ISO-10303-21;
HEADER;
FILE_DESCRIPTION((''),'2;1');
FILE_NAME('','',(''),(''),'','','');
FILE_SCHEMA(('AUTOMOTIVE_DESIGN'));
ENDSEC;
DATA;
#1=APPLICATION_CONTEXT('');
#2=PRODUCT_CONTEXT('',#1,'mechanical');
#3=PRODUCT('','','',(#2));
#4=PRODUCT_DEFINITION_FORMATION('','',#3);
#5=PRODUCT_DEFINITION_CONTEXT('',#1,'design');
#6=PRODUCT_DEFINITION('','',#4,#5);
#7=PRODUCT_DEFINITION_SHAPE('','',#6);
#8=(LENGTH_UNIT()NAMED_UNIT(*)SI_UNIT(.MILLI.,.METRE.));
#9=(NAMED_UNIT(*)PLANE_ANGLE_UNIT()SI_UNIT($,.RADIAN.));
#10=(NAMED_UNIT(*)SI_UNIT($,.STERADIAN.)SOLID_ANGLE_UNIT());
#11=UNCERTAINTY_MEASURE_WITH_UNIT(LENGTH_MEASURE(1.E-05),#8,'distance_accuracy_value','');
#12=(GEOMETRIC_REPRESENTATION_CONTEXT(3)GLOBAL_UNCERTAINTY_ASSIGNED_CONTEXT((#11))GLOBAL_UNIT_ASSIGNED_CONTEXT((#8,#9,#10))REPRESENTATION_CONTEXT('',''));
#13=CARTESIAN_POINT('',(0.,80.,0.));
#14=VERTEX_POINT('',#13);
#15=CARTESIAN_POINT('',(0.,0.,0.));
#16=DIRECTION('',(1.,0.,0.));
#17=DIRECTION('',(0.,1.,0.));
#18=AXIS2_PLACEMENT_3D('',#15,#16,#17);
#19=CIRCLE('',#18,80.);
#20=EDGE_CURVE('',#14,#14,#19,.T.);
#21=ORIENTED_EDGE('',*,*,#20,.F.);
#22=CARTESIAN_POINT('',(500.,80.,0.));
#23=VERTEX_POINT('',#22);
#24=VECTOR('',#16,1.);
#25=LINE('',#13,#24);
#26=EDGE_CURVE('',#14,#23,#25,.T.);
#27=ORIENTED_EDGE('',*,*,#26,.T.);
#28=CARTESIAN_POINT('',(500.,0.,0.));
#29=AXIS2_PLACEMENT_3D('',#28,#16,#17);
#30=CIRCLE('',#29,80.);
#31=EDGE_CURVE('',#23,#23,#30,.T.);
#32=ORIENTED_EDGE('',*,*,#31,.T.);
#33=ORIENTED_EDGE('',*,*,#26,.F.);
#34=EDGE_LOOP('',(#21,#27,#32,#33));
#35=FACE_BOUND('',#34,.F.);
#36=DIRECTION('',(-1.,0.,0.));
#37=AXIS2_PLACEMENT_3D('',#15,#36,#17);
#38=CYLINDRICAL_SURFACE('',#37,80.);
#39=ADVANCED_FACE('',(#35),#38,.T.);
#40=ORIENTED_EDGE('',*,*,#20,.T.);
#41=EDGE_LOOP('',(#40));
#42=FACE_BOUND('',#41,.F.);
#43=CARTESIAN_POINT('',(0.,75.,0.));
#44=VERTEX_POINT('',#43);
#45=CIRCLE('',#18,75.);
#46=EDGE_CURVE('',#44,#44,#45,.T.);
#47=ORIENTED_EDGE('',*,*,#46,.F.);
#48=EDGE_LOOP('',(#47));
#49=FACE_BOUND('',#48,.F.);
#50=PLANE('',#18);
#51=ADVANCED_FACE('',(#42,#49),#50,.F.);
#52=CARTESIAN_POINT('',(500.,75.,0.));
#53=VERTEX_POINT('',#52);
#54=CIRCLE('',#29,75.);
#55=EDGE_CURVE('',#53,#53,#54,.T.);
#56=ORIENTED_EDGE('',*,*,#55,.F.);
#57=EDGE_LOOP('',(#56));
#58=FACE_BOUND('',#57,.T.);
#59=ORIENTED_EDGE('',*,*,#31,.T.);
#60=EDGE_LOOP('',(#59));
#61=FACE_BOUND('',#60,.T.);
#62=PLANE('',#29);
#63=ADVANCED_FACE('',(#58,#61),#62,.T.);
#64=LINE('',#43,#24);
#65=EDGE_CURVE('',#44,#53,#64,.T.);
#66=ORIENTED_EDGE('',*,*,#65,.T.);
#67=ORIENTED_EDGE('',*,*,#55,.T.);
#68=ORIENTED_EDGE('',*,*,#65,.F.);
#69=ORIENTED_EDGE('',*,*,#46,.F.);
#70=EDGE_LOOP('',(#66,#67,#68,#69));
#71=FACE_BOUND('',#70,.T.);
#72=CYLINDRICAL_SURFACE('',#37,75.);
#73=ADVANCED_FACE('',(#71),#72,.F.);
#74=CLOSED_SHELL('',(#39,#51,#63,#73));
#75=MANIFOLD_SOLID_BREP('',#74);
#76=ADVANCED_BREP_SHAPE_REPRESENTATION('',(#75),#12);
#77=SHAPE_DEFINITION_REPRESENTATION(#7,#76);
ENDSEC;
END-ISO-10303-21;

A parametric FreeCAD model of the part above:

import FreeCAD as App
import Part
import Sketcher
from FreeCAD import Vector

doc = App.newDocument("Part")
body = doc.addObject("PartDesign::Body", "Body")

sketch1 = body.newObject("Sketcher::SketchObject", "Sketch")
sketch1.AttachmentSupport = (doc.getObject("YZ_Plane"), [""])
sketch1.MapMode = "FlatFace"
sketch1.addGeometry([
    Part.Circle(Vector(0, 0, 0), Vector(0, 0, 1), 80),
    Part.Circle(Vector(0, 0, 0), Vector(0, 0, 1), 75),
], False)
sketch1.addConstraint([
    Sketcher.Constraint("Coincident", 0, 3, -1, 1),
    Sketcher.Constraint("Coincident", 1, 3, -1, 1),
    Sketcher.Constraint("Diameter", 0, 160.0),
    Sketcher.Constraint("Diameter", 1, 150.0),
])
pad1 = body.newObject("PartDesign::Pad", "Pad")
pad1.Profile = sketch1
pad1.Length = 500

doc.recompute()
